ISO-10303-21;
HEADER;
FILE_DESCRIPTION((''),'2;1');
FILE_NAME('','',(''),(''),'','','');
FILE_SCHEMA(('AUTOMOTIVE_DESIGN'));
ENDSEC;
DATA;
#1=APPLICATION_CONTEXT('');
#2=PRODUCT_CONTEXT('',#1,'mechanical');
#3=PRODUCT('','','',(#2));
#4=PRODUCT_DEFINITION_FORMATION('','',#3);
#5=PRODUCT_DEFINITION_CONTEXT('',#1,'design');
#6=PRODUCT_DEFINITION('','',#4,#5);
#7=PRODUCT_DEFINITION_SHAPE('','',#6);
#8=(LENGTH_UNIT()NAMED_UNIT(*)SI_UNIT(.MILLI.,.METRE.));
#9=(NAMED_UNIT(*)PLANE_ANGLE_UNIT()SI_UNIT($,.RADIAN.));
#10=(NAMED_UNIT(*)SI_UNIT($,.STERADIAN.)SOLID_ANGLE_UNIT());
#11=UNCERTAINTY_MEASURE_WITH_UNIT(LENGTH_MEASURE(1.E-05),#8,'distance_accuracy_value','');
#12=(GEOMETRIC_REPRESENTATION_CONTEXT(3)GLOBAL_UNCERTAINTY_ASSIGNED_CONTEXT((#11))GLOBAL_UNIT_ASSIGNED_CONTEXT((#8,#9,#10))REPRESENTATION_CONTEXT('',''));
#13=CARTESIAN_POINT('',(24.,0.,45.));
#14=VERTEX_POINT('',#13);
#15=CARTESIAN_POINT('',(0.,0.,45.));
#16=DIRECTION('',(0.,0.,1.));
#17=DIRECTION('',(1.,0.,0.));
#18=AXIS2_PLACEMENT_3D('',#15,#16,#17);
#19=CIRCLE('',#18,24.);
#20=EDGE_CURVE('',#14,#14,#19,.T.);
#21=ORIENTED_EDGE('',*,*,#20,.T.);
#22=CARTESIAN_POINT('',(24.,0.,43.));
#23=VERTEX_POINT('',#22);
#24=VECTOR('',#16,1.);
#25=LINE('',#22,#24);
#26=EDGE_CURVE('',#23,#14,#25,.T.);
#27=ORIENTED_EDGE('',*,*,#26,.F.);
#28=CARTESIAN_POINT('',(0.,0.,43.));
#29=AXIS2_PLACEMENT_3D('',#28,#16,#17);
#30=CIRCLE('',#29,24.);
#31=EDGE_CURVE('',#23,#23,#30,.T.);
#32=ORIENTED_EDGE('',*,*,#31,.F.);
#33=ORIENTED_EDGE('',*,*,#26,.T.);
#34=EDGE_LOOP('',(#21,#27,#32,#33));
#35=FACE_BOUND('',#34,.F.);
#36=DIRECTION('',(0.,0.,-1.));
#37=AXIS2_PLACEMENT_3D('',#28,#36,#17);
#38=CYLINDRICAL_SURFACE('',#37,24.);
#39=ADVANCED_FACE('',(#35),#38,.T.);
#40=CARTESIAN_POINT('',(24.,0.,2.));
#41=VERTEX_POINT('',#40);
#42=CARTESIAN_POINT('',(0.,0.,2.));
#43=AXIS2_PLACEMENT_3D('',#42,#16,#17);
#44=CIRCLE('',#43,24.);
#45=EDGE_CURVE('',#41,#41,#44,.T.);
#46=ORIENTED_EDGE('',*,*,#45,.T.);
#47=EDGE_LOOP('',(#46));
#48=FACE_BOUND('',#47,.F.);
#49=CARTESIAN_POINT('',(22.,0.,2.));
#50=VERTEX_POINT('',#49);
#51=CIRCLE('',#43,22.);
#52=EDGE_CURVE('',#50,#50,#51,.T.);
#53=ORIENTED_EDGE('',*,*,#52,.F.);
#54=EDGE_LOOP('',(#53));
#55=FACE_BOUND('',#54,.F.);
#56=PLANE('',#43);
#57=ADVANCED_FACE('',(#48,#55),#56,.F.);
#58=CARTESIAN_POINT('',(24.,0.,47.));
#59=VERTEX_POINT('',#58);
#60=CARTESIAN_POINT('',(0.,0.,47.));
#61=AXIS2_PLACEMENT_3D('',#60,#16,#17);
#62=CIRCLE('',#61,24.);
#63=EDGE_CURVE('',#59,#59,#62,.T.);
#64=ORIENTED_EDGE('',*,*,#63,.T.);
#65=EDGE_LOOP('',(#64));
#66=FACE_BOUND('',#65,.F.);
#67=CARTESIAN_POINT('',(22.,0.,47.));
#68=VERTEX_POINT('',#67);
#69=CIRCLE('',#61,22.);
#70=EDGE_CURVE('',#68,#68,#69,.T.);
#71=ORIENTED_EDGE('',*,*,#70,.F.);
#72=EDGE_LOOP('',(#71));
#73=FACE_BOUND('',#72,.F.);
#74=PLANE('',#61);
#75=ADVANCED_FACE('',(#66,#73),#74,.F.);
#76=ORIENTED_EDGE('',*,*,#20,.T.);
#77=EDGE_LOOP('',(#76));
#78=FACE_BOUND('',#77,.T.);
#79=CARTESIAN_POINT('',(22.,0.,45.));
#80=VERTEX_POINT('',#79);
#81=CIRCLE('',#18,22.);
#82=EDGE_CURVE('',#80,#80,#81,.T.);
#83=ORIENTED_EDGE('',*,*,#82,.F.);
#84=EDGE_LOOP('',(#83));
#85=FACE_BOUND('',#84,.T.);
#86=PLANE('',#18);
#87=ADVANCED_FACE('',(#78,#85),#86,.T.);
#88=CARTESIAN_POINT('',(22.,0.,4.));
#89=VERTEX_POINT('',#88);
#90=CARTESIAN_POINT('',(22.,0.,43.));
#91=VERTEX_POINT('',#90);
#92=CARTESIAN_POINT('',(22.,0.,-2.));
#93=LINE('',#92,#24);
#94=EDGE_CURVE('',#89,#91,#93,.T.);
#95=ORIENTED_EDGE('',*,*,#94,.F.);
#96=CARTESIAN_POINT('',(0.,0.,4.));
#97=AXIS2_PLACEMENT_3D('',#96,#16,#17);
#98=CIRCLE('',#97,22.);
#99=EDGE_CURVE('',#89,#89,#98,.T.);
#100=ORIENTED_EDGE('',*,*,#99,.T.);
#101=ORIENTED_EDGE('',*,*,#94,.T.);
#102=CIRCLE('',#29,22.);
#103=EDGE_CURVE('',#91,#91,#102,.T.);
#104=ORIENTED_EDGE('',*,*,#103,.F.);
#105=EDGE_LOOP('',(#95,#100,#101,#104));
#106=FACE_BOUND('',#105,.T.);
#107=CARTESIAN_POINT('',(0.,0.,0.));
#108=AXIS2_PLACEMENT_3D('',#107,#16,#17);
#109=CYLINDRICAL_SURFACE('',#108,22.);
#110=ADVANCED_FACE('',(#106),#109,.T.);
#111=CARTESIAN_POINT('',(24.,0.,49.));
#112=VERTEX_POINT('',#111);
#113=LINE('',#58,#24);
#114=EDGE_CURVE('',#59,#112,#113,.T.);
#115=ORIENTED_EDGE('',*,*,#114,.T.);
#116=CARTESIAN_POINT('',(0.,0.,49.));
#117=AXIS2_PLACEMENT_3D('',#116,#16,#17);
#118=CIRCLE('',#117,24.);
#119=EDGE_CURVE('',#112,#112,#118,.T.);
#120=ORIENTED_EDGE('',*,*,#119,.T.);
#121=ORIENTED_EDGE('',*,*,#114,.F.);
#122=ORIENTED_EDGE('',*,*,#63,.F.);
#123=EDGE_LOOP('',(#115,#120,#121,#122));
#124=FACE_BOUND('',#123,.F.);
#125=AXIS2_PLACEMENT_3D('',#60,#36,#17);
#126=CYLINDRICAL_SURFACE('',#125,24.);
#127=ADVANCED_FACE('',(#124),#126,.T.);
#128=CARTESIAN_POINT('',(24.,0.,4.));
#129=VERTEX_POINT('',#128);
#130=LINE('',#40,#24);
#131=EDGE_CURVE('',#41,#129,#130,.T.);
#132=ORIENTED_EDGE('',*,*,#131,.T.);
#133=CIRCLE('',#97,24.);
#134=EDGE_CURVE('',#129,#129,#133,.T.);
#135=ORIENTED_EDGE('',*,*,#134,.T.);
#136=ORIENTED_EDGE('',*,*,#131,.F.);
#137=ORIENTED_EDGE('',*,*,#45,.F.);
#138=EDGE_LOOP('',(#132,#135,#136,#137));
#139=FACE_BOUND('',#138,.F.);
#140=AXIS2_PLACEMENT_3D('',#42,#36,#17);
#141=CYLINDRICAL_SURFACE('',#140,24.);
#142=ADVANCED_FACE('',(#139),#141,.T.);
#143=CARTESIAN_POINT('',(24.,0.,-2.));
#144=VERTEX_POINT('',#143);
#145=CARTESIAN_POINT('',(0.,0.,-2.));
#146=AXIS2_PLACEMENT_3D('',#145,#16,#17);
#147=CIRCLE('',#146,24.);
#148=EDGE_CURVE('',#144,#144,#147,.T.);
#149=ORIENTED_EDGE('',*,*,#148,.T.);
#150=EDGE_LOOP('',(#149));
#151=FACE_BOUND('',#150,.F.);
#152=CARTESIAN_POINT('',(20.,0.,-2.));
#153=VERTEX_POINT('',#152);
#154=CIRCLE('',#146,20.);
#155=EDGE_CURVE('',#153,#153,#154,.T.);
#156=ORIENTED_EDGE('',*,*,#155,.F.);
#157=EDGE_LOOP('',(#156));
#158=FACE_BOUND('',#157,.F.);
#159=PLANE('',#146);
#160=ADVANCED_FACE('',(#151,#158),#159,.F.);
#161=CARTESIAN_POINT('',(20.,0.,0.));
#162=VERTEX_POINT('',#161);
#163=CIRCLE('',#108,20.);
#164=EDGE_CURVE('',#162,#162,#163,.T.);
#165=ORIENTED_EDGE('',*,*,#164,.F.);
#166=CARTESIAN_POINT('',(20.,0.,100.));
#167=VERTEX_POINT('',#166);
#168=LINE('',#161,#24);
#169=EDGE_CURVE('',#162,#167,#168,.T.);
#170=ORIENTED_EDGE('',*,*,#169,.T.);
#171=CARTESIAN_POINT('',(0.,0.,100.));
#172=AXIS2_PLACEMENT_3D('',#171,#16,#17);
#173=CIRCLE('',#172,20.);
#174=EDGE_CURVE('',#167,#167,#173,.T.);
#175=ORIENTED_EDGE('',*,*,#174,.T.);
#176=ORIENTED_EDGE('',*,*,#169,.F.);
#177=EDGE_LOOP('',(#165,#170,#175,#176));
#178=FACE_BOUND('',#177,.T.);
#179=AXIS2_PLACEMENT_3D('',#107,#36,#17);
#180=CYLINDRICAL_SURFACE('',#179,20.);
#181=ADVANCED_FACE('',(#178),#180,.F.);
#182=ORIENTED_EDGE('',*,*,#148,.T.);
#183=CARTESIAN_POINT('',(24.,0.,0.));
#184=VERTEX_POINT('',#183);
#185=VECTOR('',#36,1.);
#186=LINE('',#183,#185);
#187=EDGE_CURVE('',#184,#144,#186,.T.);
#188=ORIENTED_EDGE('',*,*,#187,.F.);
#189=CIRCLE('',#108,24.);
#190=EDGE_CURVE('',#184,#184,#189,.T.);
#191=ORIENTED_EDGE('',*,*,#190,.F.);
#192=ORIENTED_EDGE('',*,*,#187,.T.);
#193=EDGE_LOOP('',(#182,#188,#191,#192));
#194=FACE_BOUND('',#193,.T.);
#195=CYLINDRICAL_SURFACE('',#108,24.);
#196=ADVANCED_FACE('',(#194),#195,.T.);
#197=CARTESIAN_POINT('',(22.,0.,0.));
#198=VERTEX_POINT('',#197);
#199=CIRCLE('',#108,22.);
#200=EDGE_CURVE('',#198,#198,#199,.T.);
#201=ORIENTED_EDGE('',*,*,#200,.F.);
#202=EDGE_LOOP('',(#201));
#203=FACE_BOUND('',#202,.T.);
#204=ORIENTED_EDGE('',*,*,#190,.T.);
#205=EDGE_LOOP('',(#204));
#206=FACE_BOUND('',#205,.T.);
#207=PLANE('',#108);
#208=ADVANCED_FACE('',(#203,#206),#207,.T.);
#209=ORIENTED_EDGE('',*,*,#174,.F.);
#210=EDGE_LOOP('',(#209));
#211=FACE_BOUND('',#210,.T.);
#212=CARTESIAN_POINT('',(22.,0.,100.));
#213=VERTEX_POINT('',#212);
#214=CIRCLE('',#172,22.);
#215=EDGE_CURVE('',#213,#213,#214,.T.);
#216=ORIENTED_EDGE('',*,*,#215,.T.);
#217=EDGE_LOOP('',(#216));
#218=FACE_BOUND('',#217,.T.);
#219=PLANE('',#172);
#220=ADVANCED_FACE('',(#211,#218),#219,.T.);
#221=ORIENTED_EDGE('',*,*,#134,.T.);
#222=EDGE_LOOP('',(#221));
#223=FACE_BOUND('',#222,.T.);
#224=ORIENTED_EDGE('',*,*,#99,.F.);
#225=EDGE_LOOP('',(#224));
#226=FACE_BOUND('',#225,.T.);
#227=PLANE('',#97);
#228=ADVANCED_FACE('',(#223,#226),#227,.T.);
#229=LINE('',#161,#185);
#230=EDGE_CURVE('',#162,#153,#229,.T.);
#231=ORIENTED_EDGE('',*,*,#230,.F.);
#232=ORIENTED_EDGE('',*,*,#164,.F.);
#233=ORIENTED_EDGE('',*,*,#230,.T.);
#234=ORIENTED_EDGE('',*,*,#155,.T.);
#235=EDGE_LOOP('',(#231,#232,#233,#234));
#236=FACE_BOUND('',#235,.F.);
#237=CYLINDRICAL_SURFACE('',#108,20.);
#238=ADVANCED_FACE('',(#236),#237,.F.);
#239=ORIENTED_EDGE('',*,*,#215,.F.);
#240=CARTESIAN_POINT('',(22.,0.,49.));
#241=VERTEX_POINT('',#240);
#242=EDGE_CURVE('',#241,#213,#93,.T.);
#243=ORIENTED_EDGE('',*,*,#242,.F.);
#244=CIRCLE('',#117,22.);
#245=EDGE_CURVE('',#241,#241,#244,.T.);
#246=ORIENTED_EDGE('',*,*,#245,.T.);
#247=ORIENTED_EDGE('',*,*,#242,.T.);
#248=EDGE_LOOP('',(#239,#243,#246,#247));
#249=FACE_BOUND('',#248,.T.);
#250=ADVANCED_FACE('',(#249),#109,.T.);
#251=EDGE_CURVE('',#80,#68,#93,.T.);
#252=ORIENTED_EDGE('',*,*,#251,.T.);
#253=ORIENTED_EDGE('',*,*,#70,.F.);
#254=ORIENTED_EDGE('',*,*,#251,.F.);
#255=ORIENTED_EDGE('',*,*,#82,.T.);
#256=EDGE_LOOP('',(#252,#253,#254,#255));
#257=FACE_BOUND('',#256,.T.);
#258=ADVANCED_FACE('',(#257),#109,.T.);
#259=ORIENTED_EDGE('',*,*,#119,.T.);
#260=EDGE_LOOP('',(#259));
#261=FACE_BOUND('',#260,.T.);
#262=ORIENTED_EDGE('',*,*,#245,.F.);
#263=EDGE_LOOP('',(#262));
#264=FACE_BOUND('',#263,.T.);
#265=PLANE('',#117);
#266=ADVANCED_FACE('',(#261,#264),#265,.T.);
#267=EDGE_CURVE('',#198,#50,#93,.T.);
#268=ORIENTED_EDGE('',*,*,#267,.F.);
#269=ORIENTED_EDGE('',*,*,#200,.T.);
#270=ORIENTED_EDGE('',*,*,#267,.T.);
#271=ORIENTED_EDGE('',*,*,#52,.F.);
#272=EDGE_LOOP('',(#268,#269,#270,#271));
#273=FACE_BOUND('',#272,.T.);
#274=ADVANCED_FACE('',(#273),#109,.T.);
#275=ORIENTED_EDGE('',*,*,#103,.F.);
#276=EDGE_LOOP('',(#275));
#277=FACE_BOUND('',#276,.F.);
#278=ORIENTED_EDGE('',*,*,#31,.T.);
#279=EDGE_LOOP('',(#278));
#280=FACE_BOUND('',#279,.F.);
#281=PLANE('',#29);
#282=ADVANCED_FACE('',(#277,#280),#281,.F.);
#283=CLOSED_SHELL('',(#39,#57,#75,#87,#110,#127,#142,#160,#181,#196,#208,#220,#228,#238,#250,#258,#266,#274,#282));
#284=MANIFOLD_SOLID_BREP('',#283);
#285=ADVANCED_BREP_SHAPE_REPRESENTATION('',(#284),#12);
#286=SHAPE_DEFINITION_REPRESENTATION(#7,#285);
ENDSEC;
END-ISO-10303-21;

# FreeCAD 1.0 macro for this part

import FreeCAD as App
import Part
import Sketcher
Q = App.Units.Quantity

doc = App.newDocument("Part")
body = doc.addObject("PartDesign::Body", "Body")

sketch1 = doc.addObject("Sketcher::SketchObject", "Sketch")
body.addObject(sketch1)
sketch1.AttachmentSupport = (doc.XY_Plane, [""])
sketch1.MapMode = "FlatFace"
sketch1.addGeometry(Part.Circle(App.Vector(0, 0, 0), App.Vector(0, 0, 1), 22), False)
sketch1.addGeometry(Part.Circle(App.Vector(0, 0, 0), App.Vector(0, 0, 1), 20), False)
sketch1.addConstraint(Sketcher.Constraint("Coincident", 0, 3, -1, 1))
sketch1.addConstraint(Sketcher.Constraint("Coincident", 1, 3, -1, 1))
sketch1.addConstraint(Sketcher.Constraint("Diameter", 0, Q("44 mm")))
sketch1.addConstraint(Sketcher.Constraint("Diameter", 1, Q("40 mm")))
pad1 = doc.addObject("PartDesign::Pad", "Pad")
body.addObject(pad1)
pad1.Profile = sketch1
pad1.Type = "TwoLengths"
pad1.Length = 100
pad1.Length2 = 2

sketch2 = doc.addObject("Sketcher::SketchObject", "Sketch001")
body.addObject(sketch2)
sketch2.AttachmentSupport = (doc.XY_Plane, [""])
sketch2.MapMode = "FlatFace"
sketch2.addGeometry(Part.Circle(App.Vector(0, 0, 0), App.Vector(0, 0, 1), 24), False)
sketch2.addGeometry(Part.Circle(App.Vector(0, 0, 0), App.Vector(0, 0, 1), 22), False)
sketch2.addConstraint(Sketcher.Constraint("Coincident", 0, 3, -1, 1))
sketch2.addConstraint(Sketcher.Constraint("Coincident", 1, 3, -1, 1))
sketch2.addConstraint(Sketcher.Constraint("Diameter", 0, Q("48 mm")))
sketch2.addConstraint(Sketcher.Constraint("Diameter", 1, Q("44 mm")))
pad2 = doc.addObject("PartDesign::Pad", "Pad001")
body.addObject(pad2)
pad2.Profile = sketch2
pad2.Length = 2
pad2.Reversed = True

sketch3 = doc.addObject("Sketcher::SketchObject", "Sketch002")
body.addObject(sketch3)
sketch3.AttachmentSupport = (doc.XY_Plane, [""])
sketch3.MapMode = "FlatFace"
sketch3.AttachmentOffset = App.Placement(App.Vector(0, 0, 2), App.Rotation())
sketch3.addGeometry(Part.Circle(App.Vector(0, 0, 0), App.Vector(0, 0, 1), 24), False)
sketch3.addGeometry(Part.Circle(App.Vector(0, 0, 0), App.Vector(0, 0, 1), 22), False)
sketch3.addConstraint(Sketcher.Constraint("Coincident", 0, 3, -1, 1))
sketch3.addConstraint(Sketcher.Constraint("Coincident", 1, 3, -1, 1))
sketch3.addConstraint(Sketcher.Constraint("Diameter", 0, Q("48 mm")))
sketch3.addConstraint(Sketcher.Constraint("Diameter", 1, Q("44 mm")))
pad3 = doc.addObject("PartDesign::Pad", "Pad002")
body.addObject(pad3)
pad3.Profile = sketch3
pad3.Length = 2

sketch4 = doc.addObject("Sketcher::SketchObject", "Sketch003")
body.addObject(sketch4)
sketch4.AttachmentSupport = (doc.XY_Plane, [""])
sketch4.MapMode = "FlatFace"
sketch4.AttachmentOffset = App.Placement(App.Vector(0, 0, 43), App.Rotation())
sketch4.addGeometry(Part.Circle(App.Vector(0, 0, 0), App.Vector(0, 0, 1), 24), False)
sketch4.addGeometry(Part.Circle(App.Vector(0, 0, 0), App.Vector(0, 0, 1), 22), False)
sketch4.addConstraint(Sketcher.Constraint("Coincident", 0, 3, -1, 1))
sketch4.addConstraint(Sketcher.Constraint("Coincident", 1, 3, -1, 1))
sketch4.addConstraint(Sketcher.Constraint("Diameter", 0, Q("48 mm")))
sketch4.addConstraint(Sketcher.Constraint("Diameter", 1, Q("44 mm")))
pad4 = doc.addObject("PartDesign::Pad", "Pad003")
body.addObject(pad4)
pad4.Profile = sketch4
pad4.Length = 2

sketch5 = doc.addObject("Sketcher::SketchObject", "Sketch004")
body.addObject(sketch5)
sketch5.AttachmentSupport = (doc.XY_Plane, [""])
sketch5.MapMode = "FlatFace"
sketch5.AttachmentOffset = App.Placement(App.Vector(0, 0, 47), App.Rotation())
sketch5.addGeometry(Part.Circle(App.Vector(0, 0, 0), App.Vector(0, 0, 1), 24), False)
sketch5.addGeometry(Part.Circle(App.Vector(0, 0, 0), App.Vector(0, 0, 1), 22), False)
sketch5.addConstraint(Sketcher.Constraint("Coincident", 0, 3, -1, 1))
sketch5.addConstraint(Sketcher.Constraint("Coincident", 1, 3, -1, 1))
sketch5.addConstraint(Sketcher.Constraint("Diameter", 0, Q("48 mm")))
sketch5.addConstraint(Sketcher.Constraint("Diameter", 1, Q("44 mm")))
pad5 = doc.addObject("PartDesign::Pad", "Pad004")
body.addObject(pad5)
pad5.Profile = sketch5
pad5.Length = 2

doc.recompute()
